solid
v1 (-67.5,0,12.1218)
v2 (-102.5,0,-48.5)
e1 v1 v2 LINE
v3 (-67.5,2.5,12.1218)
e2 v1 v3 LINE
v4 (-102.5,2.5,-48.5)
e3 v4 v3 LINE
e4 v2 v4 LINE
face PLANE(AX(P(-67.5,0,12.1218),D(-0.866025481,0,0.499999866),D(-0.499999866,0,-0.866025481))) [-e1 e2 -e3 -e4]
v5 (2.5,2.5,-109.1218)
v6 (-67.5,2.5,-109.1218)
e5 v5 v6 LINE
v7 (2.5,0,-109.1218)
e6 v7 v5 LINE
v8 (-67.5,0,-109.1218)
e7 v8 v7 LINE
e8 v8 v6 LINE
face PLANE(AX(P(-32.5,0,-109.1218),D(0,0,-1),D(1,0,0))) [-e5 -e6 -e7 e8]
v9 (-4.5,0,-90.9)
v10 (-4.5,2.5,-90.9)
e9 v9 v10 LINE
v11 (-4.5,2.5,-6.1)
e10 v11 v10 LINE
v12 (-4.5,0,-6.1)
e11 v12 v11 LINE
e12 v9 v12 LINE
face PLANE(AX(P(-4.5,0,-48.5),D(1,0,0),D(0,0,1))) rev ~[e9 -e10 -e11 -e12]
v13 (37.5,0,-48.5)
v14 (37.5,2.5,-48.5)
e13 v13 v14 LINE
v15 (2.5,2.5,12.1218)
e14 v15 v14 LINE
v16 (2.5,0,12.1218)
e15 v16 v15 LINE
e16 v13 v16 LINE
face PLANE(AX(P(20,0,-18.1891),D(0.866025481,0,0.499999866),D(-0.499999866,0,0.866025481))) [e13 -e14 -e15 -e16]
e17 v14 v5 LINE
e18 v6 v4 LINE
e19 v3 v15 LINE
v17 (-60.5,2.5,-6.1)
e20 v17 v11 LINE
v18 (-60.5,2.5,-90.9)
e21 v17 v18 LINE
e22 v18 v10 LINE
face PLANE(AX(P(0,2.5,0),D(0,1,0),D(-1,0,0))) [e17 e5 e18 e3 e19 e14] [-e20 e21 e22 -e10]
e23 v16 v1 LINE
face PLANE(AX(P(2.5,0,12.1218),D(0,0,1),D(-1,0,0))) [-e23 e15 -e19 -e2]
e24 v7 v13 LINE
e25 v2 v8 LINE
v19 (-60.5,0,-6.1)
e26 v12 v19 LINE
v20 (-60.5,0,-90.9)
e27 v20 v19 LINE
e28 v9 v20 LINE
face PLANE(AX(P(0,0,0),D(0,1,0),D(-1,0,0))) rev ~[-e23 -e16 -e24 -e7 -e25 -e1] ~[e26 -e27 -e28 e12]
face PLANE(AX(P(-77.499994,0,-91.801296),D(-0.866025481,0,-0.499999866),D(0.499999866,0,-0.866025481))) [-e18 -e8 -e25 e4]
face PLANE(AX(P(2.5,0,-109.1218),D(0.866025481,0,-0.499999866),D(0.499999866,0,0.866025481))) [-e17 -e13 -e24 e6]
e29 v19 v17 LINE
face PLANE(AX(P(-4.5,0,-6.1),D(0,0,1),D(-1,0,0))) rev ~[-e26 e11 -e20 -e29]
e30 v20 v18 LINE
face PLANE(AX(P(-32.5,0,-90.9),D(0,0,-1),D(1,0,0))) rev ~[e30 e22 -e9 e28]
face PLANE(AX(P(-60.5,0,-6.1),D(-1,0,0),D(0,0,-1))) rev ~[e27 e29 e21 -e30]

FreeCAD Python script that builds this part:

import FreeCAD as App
import Part
import Sketcher
Q = App.Units.Quantity


def add_polygon(sketch, points):
    """Adds a closed chain of lines whose ends are joined by coincident constraints."""
    first, n = sketch.GeometryCount, len(points)
    for a, b in zip(points, points[1:] + points[:1]):
        sketch.addGeometry(Part.LineSegment(App.Vector(*a, 0), App.Vector(*b, 0)), False)
    for i in range(n):
        sketch.addConstraint(Sketcher.Constraint("Coincident", first + i, 2, first + (i + 1) % n, 1))

doc = App.newDocument("Part")
body = doc.addObject("PartDesign::Body", "Body")

sketch1 = doc.addObject("Sketcher::SketchObject", "Sketch")
body.addObject(sketch1)
sketch1.AttachmentSupport = (doc.XZ_Plane, [""])
sketch1.MapMode = "FlatFace"
add_polygon(sketch1, [(2, 12), (38, -48), (2, -109), (-68, -109), (-102, -48), (-68, 12)])
add_polygon(sketch1, [(-4, -6), (-60, -6), (-60, -91), (-4, -91)])
sketch1.addConstraint(Sketcher.Constraint("Horizontal", 2))
sketch1.addConstraint(Sketcher.Constraint("Horizontal", 5))
sketch1.addConstraint(Sketcher.Constraint("Horizontal", 6))
sketch1.addConstraint(Sketcher.Constraint("Vertical", 7))
sketch1.addConstraint(Sketcher.Constraint("Horizontal", 8))
sketch1.addConstraint(Sketcher.Constraint("Vertical", 9))
sketch1.addConstraint(Sketcher.Constraint("Parallel", 0, 3))
sketch1.addConstraint(Sketcher.Constraint("Parallel", 1, 4))
sketch1.addConstraint(Sketcher.Constraint("Horizontal", 0, 2, 3, 2))
sketch1.addConstraint(Sketcher.Constraint("Vertical", 2, 2, 4, 2))
sketch1.addConstraint(Sketcher.Constraint("Vertical", 1, 2, 5, 2))
sketch1.addConstraint(Sketcher.Constraint("DistanceX", 3, 2, 0, 2, Q("140 mm")))
sketch1.addConstraint(Sketcher.Constraint("DistanceX", -1, 1, 1, 2, Q("2.5 mm")))
sketch1.addConstraint(Sketcher.Constraint("DistanceX", 2, 2, 2, 1, Q("70 mm")))
sketch1.addConstraint(Sketcher.Constraint("DistanceX", 6, 2, 6, 1, Q("56 mm")))
sketch1.addConstraint(Sketcher.Constraint("Angle", 0, Q("-60 deg")))
sketch1.addConstraint(Sketcher.Constraint("DistanceY", 7, 2, 7, 1, Q("84.8 mm")))
sketch1.addConstraint(Sketcher.Constraint("DistanceX", 4, 2, 6, 2, Q("7 mm")))
sketch1.addConstraint(Sketcher.Constraint("DistanceY", 0, 2, -1, 1, Q("48.5 mm")))
sketch1.addConstraint(Sketcher.Constraint("DistanceY", 6, 2, -1, 1, Q("6.1 mm")))
pad1 = doc.addObject("PartDesign::Pad", "Pad")
body.addObject(pad1)
pad1.Profile = sketch1
pad1.Length = 2.5
pad1.Reversed = True

doc.recompute()
